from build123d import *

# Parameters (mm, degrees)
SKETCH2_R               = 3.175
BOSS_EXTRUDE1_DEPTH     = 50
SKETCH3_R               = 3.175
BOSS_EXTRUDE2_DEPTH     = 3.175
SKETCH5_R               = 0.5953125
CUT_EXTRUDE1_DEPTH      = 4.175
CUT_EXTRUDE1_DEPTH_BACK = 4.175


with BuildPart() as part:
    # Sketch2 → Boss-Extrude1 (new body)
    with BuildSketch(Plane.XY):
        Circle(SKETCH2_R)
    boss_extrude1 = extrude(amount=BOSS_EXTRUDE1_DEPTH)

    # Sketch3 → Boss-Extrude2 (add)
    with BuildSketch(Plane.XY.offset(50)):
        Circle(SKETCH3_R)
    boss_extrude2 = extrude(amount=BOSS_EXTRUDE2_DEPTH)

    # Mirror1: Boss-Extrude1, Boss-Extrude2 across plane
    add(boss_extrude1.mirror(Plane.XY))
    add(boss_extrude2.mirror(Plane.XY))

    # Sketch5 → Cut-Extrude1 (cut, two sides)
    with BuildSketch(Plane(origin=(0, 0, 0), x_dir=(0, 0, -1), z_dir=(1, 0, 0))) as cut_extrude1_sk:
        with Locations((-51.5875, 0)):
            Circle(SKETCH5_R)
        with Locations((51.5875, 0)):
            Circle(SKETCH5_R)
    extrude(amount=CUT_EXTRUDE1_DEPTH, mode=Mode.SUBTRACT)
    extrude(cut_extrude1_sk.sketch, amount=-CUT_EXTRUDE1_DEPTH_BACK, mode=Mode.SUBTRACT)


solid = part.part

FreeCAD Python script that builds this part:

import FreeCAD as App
import Part
import Sketcher

V = App.Vector
Q = App.Units.Quantity

doc = App.newDocument("Part")
body = doc.addObject("PartDesign::Body", "Body")

sketch1 = body.newObject("Sketcher::SketchObject", "Sketch")
sketch1.AttachmentSupport = (doc.getObject("XY_Plane"), [""])
sketch1.MapMode = "FlatFace"
sketch1.addGeometry(Part.Circle(V(0, 0, 0), V(0, 0, 1), 3.2), False)
sketch1.addConstraint(Sketcher.Constraint("Coincident", 0, 3, -1, 1))
sketch1.addConstraint(Sketcher.Constraint("Diameter", 0, Q("0.25 in")))
pad1 = body.newObject("PartDesign::Pad", "Pad")
pad1.Profile = sketch1
pad1.Length = 50

sketch2 = body.newObject("Sketcher::SketchObject", "Sketch001")
sketch2.AttachmentSupport = (doc.getObject("XY_Plane"), [""])
sketch2.MapMode = "FlatFace"
sketch2.AttachmentOffset = App.Placement(V(0, 0, 50), App.Rotation())
sketch2.addGeometry(Part.Circle(V(0, 0, 0), V(0, 0, 1), 3.2), False)
sketch2.addConstraint(Sketcher.Constraint("Coincident", 0, 3, -1, 1))
sketch2.addConstraint(Sketcher.Constraint("Diameter", 0, Q("0.25 in")))
pad2 = body.newObject("PartDesign::Pad", "Pad001")
pad2.Profile = sketch2
pad2.Length = Q("0.125 in")
doc.recompute()

mirrored = body.newObject("PartDesign::Mirrored", "Mirrored")
mirrored.Originals = [pad1, pad2]
mirrored.MirrorPlane = (doc.getObject("XY_Plane"), [""])
body.Tip = mirrored

sketch3 = body.newObject("Sketcher::SketchObject", "Sketch002")
sketch3.AttachmentSupport = (doc.getObject("YZ_Plane"), [""])
sketch3.MapMode = "FlatFace"
sketch3.addGeometry(Part.Circle(V(0, 51.6, 0), V(0, 0, 1), 0.6), False)
sketch3.addGeometry(Part.Circle(V(0, -51.6, 0), V(0, 0, 1), 0.6), False)
sketch3.addConstraint(Sketcher.Constraint("Equal", 0, 1))
sketch3.addConstraint(Sketcher.Constraint("Symmetric", 0, 3, 1, 3, -1, 1))
sketch3.addConstraint(Sketcher.Constraint("PointOnObject", 0, 3, -2))
sketch3.addConstraint(Sketcher.Constraint("Diameter", 0, Q("0.046875 in")))
sketch3.addConstraint(Sketcher.Constraint("DistanceY", -1, 1, 0, 3, Q("51.5875 mm")))
pocket1 = body.newObject("PartDesign::Pocket", "Pocket")
pocket1.Profile = sketch3
pocket1.Type = "ThroughAll"
pocket1.Midplane = True

doc.recompute()
